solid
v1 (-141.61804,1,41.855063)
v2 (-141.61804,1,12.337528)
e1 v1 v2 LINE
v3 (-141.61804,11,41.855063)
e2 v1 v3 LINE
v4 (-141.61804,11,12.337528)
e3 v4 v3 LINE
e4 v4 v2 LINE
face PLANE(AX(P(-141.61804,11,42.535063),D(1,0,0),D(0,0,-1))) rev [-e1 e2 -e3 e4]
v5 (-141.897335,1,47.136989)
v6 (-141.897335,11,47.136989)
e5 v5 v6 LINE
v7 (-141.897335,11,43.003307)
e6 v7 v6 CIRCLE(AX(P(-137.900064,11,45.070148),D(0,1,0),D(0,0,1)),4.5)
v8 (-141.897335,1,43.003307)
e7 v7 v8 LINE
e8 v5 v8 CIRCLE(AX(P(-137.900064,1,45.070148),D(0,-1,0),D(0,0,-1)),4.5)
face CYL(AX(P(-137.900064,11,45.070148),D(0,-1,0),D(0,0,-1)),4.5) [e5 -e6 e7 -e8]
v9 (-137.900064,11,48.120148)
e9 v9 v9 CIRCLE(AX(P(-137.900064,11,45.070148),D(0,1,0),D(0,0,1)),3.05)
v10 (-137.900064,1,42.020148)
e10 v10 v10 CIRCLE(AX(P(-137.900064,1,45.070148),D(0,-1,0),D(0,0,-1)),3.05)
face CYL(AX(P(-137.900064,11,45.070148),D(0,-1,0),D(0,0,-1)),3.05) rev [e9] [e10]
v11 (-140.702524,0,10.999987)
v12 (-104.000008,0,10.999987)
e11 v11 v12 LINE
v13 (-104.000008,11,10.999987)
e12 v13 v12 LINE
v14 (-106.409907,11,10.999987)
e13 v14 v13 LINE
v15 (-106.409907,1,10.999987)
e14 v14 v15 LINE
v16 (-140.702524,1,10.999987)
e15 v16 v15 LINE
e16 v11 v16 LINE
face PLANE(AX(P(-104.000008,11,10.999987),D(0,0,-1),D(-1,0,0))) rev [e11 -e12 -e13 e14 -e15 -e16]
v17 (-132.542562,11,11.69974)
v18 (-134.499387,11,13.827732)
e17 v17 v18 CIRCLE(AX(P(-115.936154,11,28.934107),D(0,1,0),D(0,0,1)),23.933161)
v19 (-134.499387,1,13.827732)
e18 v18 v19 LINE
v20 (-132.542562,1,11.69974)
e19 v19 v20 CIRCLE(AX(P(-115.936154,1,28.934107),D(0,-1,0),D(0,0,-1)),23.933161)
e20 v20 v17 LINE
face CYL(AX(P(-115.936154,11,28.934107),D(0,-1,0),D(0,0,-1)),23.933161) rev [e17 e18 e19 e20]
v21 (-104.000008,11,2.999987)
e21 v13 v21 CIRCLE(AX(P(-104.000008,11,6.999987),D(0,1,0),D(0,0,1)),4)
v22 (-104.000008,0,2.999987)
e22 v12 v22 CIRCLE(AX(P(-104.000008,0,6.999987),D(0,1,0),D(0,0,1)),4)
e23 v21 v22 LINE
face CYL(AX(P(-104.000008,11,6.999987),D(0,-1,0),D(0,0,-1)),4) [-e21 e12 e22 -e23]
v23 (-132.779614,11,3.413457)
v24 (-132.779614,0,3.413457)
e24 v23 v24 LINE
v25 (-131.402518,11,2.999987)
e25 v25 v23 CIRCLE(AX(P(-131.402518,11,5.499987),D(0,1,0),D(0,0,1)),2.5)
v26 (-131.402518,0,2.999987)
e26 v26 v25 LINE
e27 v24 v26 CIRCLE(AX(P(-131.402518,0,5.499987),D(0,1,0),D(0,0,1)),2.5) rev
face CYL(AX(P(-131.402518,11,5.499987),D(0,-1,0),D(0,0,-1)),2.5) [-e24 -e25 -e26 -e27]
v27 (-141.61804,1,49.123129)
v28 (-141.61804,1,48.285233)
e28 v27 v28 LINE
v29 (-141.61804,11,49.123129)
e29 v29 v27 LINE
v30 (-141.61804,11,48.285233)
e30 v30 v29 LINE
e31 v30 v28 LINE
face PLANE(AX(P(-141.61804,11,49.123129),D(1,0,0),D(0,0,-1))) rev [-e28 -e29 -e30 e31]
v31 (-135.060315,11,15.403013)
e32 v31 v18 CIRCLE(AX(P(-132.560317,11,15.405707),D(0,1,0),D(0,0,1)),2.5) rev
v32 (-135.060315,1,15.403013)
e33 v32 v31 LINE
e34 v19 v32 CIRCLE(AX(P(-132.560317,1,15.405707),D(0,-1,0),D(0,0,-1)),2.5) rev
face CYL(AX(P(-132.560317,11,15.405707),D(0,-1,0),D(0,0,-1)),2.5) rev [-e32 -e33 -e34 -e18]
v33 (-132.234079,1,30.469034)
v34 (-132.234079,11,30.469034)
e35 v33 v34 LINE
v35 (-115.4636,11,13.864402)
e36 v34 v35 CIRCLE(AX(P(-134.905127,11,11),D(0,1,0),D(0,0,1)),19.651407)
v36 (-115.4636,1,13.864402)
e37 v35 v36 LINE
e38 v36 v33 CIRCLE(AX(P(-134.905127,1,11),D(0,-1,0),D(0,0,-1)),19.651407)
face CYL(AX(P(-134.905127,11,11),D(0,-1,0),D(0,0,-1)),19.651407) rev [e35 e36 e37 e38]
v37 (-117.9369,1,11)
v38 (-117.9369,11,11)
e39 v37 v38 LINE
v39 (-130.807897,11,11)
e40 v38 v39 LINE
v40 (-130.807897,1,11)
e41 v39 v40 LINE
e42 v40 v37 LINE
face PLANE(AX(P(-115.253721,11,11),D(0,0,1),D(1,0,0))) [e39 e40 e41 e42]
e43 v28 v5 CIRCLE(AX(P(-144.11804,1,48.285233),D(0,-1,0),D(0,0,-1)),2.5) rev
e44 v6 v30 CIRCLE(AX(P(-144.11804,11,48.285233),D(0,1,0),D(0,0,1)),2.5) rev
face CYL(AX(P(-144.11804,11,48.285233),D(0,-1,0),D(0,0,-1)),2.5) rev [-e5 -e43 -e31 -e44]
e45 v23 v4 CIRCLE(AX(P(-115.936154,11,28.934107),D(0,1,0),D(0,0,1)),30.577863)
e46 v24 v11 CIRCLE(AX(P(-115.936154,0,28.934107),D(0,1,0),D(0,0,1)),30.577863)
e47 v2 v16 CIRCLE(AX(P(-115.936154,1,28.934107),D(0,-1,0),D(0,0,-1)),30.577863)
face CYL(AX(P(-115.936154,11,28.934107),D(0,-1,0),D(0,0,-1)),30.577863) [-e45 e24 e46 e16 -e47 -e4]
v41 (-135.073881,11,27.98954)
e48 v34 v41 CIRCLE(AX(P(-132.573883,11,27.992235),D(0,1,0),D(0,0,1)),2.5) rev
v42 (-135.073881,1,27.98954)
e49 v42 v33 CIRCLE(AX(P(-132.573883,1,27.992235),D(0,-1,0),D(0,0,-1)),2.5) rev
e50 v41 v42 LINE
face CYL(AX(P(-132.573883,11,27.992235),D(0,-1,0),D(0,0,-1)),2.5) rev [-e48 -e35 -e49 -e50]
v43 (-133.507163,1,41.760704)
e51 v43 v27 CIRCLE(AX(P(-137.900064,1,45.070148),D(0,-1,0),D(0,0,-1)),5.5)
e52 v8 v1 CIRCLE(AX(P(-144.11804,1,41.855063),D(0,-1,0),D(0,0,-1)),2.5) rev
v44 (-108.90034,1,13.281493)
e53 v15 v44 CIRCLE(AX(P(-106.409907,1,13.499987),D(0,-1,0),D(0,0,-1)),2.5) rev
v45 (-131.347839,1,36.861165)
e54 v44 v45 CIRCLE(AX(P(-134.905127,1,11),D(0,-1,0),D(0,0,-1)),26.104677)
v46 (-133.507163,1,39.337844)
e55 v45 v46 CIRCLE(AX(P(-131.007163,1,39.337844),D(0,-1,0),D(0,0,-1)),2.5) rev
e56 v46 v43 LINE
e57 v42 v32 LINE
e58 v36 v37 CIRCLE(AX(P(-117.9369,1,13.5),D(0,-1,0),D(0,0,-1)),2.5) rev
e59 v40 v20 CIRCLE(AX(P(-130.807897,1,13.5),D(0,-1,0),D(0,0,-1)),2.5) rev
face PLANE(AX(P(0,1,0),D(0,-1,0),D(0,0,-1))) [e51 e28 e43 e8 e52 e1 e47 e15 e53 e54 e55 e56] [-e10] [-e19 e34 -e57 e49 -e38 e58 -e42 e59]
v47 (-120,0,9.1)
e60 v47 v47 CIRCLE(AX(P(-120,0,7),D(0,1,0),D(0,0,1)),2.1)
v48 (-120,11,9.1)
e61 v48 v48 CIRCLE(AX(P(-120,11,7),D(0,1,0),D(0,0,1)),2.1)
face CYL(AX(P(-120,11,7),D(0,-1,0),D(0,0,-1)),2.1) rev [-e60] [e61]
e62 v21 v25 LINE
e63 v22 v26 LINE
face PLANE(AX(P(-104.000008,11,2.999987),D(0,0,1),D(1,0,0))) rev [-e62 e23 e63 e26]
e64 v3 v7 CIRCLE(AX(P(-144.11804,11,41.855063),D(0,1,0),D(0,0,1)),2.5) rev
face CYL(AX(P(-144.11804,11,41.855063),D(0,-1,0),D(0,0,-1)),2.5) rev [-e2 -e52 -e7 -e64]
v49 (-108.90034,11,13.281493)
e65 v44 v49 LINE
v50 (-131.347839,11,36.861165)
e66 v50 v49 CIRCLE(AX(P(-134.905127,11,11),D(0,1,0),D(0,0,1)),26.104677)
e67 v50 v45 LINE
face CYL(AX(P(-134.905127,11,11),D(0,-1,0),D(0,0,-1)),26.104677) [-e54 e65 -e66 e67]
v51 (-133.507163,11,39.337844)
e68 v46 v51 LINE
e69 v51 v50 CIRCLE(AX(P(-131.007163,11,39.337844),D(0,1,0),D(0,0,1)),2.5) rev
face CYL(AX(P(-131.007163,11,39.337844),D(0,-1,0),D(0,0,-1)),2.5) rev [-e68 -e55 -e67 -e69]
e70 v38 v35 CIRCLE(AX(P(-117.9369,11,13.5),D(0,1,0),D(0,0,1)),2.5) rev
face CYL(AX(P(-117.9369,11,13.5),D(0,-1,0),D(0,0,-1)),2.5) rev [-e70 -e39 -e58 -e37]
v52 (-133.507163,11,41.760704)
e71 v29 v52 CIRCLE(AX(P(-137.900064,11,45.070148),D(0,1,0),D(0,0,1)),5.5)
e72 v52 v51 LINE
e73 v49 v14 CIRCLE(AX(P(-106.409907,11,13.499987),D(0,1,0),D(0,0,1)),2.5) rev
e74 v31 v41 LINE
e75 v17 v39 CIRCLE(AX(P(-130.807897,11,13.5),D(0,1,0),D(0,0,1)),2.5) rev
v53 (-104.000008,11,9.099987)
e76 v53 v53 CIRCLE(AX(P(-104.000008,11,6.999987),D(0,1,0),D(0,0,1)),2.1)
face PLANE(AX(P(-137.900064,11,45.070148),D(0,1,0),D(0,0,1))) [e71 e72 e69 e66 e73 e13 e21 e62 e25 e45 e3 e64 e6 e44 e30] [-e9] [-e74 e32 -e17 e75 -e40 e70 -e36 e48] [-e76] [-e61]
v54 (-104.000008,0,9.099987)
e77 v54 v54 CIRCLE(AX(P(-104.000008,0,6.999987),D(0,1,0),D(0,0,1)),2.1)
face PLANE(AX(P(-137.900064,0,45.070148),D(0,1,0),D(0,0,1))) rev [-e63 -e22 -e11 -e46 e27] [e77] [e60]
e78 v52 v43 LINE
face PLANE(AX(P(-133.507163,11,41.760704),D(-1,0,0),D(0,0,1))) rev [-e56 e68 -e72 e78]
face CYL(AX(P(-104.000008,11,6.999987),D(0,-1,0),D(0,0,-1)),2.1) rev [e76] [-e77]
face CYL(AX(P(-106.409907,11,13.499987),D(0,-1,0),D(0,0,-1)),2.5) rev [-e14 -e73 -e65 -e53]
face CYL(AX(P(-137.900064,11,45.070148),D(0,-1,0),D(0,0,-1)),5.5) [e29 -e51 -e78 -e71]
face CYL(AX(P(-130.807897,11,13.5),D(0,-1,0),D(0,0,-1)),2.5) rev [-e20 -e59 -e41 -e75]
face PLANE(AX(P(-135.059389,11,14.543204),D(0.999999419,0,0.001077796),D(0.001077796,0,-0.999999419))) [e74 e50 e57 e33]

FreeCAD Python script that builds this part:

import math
import FreeCAD as App
import Part
import Sketcher


def edges_at(feature, points):
    """Names of the edges that pass closest to the given points."""
    edges = feature.Shape.Edges
    near = lambda p: min(range(len(edges)), key=lambda i: edges[i].distToShape(Part.Vertex(*p))[0])
    return sorted({f"Edge{near(p) + 1}" for p in points})


def add_polygon(sketch, points):
    """Adds a closed chain of lines whose ends are joined by coincident constraints."""
    first, n = sketch.GeometryCount, len(points)
    for a, b in zip(points, points[1:] + points[:1]):
        sketch.addGeometry(Part.LineSegment(App.Vector(*a, 0), App.Vector(*b, 0)), False)
    for i in range(n):
        sketch.addConstraint(Sketcher.Constraint("Coincident", first + i, 2, first + (i + 1) % n, 1))

doc = App.newDocument("Part")
body = doc.addObject("PartDesign::Body", "Body")

sketch1 = body.newObject("Sketcher::SketchObject", "Sketch")
sketch1.AttachmentSupport = (doc.getObject("XZ_Plane"), [""])
sketch1.MapMode = "FlatFace"
sketch1.addGeometry(Part.LineSegment(App.Vector(-141.6, 47.6, 0), App.Vector(-141.6, 49.1, 0)), False)
sketch1.addGeometry(Part.ArcOfCircle(Part.Circle(App.Vector(-137.9, 45.1, 0), App.Vector(0, 0, 1), 5.5), math.radians(-37), math.radians(133)), False)
sketch1.addGeometry(Part.LineSegment(App.Vector(-133.5, 41.8, 0), App.Vector(-133.5, 37.1, 0)), False)
sketch1.addGeometry(Part.ArcOfCircle(Part.Circle(App.Vector(-134.9, 11, 0), App.Vector(0, 0, 1), 26.1), math.radians(0), math.radians(87)), False)
sketch1.addGeometry(Part.LineSegment(App.Vector(-108.8, 11, 0), App.Vector(-104, 11, 0)), False)
sketch1.addGeometry(Part.ArcOfCircle(Part.Circle(App.Vector(-104, 7, 0), App.Vector(0, 0, 1), 4), math.radians(-90), math.radians(90)), False)
sketch1.addGeometry(Part.LineSegment(App.Vector(-104, 3, 0), App.Vector(-132.1, 3, 0)), False)
sketch1.addGeometry(Part.ArcOfCircle(Part.Circle(App.Vector(-115.9, 28.9, 0), App.Vector(0, 0, 1), 30.6), math.radians(-147), math.radians(-122)), False)
sketch1.addGeometry(Part.LineSegment(App.Vector(-141.6, 12.3, 0), App.Vector(-141.6, 42.5, 0)), False)
sketch1.addGeometry(Part.ArcOfCircle(Part.Circle(App.Vector(-137.9, 45.1, 0), App.Vector(0, 0, 1), 4.5), math.radians(146), math.radians(214)), False)
sketch1.addGeometry(Part.Circle(App.Vector(-137.9, 45.1, 0), App.Vector(0, 0, 1), 3), False)
sketch1.addGeometry(Part.Circle(App.Vector(-104, 7, 0), App.Vector(0, 0, 1), 2.1), False)
sketch1.addGeometry(Part.Circle(App.Vector(-120, 7, 0), App.Vector(0, 0, 1), 2.1), False)
sketch1.addGeometry(Part.ArcOfCircle(Part.Circle(App.Vector(-134.9, 11, 0), App.Vector(0, 0, 1), 19.7), math.radians(0), math.radians(91)), False)
sketch1.addGeometry(Part.LineSegment(App.Vector(-135.1, 30.7, 0), App.Vector(-135.1, 14.5, 0)), False)
sketch1.addGeometry(Part.ArcOfCircle(Part.Circle(App.Vector(-115.9, 28.9, 0), App.Vector(0, 0, 1), 23.9), math.radians(-143.04), math.radians(-131.47)), False)
sketch1.addGeometry(Part.LineSegment(App.Vector(-131.8, 11, 0), App.Vector(-115.3, 11, 0)), False)
sketch1.addConstraint(Sketcher.Constraint("Coincident", 0, 2, 1, 2))
sketch1.addConstraint(Sketcher.Constraint("Coincident", 1, 1, 2, 1))
sketch1.addConstraint(Sketcher.Constraint("Coincident", 2, 2, 3, 2))
sketch1.addConstraint(Sketcher.Constraint("Coincident", 3, 1, 4, 1))
sketch1.addConstraint(Sketcher.Constraint("Tangent", 4, 2, 5, 2))
sketch1.addConstraint(Sketcher.Constraint("Tangent", 5, 1, 6, 1))
sketch1.addConstraint(Sketcher.Constraint("Coincident", 6, 2, 7, 2))
sketch1.addConstraint(Sketcher.Constraint("Coincident", 7, 1, 8, 1))
sketch1.addConstraint(Sketcher.Constraint("Coincident", 8, 2, 9, 2))
sketch1.addConstraint(Sketcher.Constraint("Coincident", 9, 1, 0, 1))
sketch1.addConstraint(Sketcher.Constraint("Coincident", 13, 2, 14, 1))
sketch1.addConstraint(Sketcher.Constraint("Coincident", 14, 2, 15, 1))
sketch1.addConstraint(Sketcher.Constraint("Coincident", 15, 2, 16, 1))
sketch1.addConstraint(Sketcher.Constraint("Coincident", 16, 2, 13, 1))
sketch1.addConstraint(Sketcher.Constraint("Vertical", 0))
sketch1.addConstraint(Sketcher.Constraint("Vertical", 2))
sketch1.addConstraint(Sketcher.Constraint("Horizontal", 4))
sketch1.addConstraint(Sketcher.Constraint("Horizontal", 6))
sketch1.addConstraint(Sketcher.Constraint("Vertical", 8))
sketch1.addConstraint(Sketcher.Constraint("Horizontal", 16))
sketch1.addConstraint(Sketcher.Constraint("Coincident", 9, 3, 1, 3))
sketch1.addConstraint(Sketcher.Constraint("Coincident", 10, 3, 1, 3))
sketch1.addConstraint(Sketcher.Constraint("Coincident", 11, 3, 5, 3))
sketch1.addConstraint(Sketcher.Constraint("Coincident", 13, 3, 3, 3))
sketch1.addConstraint(Sketcher.Constraint("Coincident", 15, 3, 7, 3))
sketch1.addConstraint(Sketcher.Constraint("Equal", 11, 12))
sketch1.addConstraint(Sketcher.Constraint("Horizontal", 13, 3, 15, 2))
sketch1.addConstraint(Sketcher.Constraint("Vertical", 0, 2, 7, 1))
sketch1.addConstraint(Sketcher.Constraint("Radius", 5, 4.0))
sketch1.addConstraint(Sketcher.Constraint("Diameter", 10, 6.1))
sketch1.addConstraint(Sketcher.Constraint("Diameter", 11, 4.2))
sketch1.addConstraint(Sketcher.Constraint("Radius", 1, 5.5))
sketch1.addConstraint(Sketcher.Constraint("Radius", 9, 4.5))
sketch1.addConstraint(Sketcher.Constraint("DistanceY", -1, 1, 3, 3, 11.0))
sketch1.addConstraint(Sketcher.Constraint("DistanceX", 12, 3, -1, 1, 120.0))
sketch1.addConstraint(Sketcher.Constraint("DistanceY", -1, 1, 12, 3, 7.0))
sketch1.addConstraint(Sketcher.Constraint("Radius", 15, 23.933161))
sketch1.addConstraint(Sketcher.Constraint("Radius", 3, 26.104677))
sketch1.addConstraint(Sketcher.Constraint("Radius", 7, 30.577863))
sketch1.addConstraint(Sketcher.Constraint("Radius", 13, 19.651407))
sketch1.addConstraint(Sketcher.Constraint("DistanceX", 6, 2, 6, 1, 28.135749))
sketch1.addConstraint(Sketcher.Constraint("DistanceX", 9, 3, 1, 1, 4.392901))
sketch1.addConstraint(Sketcher.Constraint("DistanceX", 4, 1, 4, 2, 4.800442))
sketch1.addConstraint(Sketcher.Constraint("DistanceX", 16, 1, 16, 2, 16.530588))
sketch1.addConstraint(Sketcher.Constraint("DistanceY", 0, 1, 0, 2, 1.517896))
sketch1.addConstraint(Sketcher.Constraint("DistanceY", 2, 2, 2, 1, 4.693486))
sketch1.addConstraint(Sketcher.Constraint("DistanceY", 8, 1, 8, 2, 30.197535))
sketch1.addConstraint(Sketcher.Constraint("DistanceX", 5, 3, -1, 1, 104.000008))
sketch1.addConstraint(Sketcher.Constraint("DistanceX", 0, 2, -1, 1, 141.61804))
sketch1.addConstraint(Sketcher.Constraint("DistanceX", 13, 2, -1, 1, 135.076749))
sketch1.addConstraint(Sketcher.Constraint("DistanceX", 14, 2, -1, 1, 135.059389))
pad1 = body.newObject("PartDesign::Pad", "Pad")
pad1.Profile = sketch1
pad1.Length = 11
pad1.Reversed = True
doc.recompute()

fillet = body.newObject("PartDesign::Fillet", "Fillet")
fillet.Base = (pad1, edges_at(pad1, [
    (-141.618, 5.5, 47.605),
    (-141.618, 5.5, 42.535),
    (-132.136, 5.5, 3),
    (-108.8, 5.5, 11),
    (-133.507, 5.5, 37.067),
    (-135.077, 5.5, 30.651),
    (-115.254, 5.5, 11),
    (-131.784, 5.5, 11),
    (-135.059, 5.5, 14.543),
]))
fillet.Radius = 2.5

sketch2 = body.newObject("Sketcher::SketchObject", "Sketch001")
sketch2.AttachmentSupport = (doc.getObject("XZ_Plane"), [""])
sketch2.MapMode = "FlatFace"
add_polygon(sketch2, [(-152, 64), (-152, 11), (-90, 11), (-90, 64)])
sketch2.addConstraint(Sketcher.Constraint("Vertical", 0))
sketch2.addConstraint(Sketcher.Constraint("Horizontal", 1))
sketch2.addConstraint(Sketcher.Constraint("Vertical", 2))
sketch2.addConstraint(Sketcher.Constraint("Horizontal", 3))
sketch2.addConstraint(Sketcher.Constraint("DistanceX", 1, 1, 1, 2, 62.051099))
sketch2.addConstraint(Sketcher.Constraint("DistanceY", 0, 2, 0, 1, 53.114405))
sketch2.addConstraint(Sketcher.Constraint("DistanceX", 0, 2, -1, 1, 151.581641))
sketch2.addConstraint(Sketcher.Constraint("DistanceY", -1, 1, 0, 2, 10.999987))
pocket1 = body.newObject("PartDesign::Pocket", "Pocket")
pocket1.Profile = sketch2
pocket1.Length = 1

doc.recompute()
